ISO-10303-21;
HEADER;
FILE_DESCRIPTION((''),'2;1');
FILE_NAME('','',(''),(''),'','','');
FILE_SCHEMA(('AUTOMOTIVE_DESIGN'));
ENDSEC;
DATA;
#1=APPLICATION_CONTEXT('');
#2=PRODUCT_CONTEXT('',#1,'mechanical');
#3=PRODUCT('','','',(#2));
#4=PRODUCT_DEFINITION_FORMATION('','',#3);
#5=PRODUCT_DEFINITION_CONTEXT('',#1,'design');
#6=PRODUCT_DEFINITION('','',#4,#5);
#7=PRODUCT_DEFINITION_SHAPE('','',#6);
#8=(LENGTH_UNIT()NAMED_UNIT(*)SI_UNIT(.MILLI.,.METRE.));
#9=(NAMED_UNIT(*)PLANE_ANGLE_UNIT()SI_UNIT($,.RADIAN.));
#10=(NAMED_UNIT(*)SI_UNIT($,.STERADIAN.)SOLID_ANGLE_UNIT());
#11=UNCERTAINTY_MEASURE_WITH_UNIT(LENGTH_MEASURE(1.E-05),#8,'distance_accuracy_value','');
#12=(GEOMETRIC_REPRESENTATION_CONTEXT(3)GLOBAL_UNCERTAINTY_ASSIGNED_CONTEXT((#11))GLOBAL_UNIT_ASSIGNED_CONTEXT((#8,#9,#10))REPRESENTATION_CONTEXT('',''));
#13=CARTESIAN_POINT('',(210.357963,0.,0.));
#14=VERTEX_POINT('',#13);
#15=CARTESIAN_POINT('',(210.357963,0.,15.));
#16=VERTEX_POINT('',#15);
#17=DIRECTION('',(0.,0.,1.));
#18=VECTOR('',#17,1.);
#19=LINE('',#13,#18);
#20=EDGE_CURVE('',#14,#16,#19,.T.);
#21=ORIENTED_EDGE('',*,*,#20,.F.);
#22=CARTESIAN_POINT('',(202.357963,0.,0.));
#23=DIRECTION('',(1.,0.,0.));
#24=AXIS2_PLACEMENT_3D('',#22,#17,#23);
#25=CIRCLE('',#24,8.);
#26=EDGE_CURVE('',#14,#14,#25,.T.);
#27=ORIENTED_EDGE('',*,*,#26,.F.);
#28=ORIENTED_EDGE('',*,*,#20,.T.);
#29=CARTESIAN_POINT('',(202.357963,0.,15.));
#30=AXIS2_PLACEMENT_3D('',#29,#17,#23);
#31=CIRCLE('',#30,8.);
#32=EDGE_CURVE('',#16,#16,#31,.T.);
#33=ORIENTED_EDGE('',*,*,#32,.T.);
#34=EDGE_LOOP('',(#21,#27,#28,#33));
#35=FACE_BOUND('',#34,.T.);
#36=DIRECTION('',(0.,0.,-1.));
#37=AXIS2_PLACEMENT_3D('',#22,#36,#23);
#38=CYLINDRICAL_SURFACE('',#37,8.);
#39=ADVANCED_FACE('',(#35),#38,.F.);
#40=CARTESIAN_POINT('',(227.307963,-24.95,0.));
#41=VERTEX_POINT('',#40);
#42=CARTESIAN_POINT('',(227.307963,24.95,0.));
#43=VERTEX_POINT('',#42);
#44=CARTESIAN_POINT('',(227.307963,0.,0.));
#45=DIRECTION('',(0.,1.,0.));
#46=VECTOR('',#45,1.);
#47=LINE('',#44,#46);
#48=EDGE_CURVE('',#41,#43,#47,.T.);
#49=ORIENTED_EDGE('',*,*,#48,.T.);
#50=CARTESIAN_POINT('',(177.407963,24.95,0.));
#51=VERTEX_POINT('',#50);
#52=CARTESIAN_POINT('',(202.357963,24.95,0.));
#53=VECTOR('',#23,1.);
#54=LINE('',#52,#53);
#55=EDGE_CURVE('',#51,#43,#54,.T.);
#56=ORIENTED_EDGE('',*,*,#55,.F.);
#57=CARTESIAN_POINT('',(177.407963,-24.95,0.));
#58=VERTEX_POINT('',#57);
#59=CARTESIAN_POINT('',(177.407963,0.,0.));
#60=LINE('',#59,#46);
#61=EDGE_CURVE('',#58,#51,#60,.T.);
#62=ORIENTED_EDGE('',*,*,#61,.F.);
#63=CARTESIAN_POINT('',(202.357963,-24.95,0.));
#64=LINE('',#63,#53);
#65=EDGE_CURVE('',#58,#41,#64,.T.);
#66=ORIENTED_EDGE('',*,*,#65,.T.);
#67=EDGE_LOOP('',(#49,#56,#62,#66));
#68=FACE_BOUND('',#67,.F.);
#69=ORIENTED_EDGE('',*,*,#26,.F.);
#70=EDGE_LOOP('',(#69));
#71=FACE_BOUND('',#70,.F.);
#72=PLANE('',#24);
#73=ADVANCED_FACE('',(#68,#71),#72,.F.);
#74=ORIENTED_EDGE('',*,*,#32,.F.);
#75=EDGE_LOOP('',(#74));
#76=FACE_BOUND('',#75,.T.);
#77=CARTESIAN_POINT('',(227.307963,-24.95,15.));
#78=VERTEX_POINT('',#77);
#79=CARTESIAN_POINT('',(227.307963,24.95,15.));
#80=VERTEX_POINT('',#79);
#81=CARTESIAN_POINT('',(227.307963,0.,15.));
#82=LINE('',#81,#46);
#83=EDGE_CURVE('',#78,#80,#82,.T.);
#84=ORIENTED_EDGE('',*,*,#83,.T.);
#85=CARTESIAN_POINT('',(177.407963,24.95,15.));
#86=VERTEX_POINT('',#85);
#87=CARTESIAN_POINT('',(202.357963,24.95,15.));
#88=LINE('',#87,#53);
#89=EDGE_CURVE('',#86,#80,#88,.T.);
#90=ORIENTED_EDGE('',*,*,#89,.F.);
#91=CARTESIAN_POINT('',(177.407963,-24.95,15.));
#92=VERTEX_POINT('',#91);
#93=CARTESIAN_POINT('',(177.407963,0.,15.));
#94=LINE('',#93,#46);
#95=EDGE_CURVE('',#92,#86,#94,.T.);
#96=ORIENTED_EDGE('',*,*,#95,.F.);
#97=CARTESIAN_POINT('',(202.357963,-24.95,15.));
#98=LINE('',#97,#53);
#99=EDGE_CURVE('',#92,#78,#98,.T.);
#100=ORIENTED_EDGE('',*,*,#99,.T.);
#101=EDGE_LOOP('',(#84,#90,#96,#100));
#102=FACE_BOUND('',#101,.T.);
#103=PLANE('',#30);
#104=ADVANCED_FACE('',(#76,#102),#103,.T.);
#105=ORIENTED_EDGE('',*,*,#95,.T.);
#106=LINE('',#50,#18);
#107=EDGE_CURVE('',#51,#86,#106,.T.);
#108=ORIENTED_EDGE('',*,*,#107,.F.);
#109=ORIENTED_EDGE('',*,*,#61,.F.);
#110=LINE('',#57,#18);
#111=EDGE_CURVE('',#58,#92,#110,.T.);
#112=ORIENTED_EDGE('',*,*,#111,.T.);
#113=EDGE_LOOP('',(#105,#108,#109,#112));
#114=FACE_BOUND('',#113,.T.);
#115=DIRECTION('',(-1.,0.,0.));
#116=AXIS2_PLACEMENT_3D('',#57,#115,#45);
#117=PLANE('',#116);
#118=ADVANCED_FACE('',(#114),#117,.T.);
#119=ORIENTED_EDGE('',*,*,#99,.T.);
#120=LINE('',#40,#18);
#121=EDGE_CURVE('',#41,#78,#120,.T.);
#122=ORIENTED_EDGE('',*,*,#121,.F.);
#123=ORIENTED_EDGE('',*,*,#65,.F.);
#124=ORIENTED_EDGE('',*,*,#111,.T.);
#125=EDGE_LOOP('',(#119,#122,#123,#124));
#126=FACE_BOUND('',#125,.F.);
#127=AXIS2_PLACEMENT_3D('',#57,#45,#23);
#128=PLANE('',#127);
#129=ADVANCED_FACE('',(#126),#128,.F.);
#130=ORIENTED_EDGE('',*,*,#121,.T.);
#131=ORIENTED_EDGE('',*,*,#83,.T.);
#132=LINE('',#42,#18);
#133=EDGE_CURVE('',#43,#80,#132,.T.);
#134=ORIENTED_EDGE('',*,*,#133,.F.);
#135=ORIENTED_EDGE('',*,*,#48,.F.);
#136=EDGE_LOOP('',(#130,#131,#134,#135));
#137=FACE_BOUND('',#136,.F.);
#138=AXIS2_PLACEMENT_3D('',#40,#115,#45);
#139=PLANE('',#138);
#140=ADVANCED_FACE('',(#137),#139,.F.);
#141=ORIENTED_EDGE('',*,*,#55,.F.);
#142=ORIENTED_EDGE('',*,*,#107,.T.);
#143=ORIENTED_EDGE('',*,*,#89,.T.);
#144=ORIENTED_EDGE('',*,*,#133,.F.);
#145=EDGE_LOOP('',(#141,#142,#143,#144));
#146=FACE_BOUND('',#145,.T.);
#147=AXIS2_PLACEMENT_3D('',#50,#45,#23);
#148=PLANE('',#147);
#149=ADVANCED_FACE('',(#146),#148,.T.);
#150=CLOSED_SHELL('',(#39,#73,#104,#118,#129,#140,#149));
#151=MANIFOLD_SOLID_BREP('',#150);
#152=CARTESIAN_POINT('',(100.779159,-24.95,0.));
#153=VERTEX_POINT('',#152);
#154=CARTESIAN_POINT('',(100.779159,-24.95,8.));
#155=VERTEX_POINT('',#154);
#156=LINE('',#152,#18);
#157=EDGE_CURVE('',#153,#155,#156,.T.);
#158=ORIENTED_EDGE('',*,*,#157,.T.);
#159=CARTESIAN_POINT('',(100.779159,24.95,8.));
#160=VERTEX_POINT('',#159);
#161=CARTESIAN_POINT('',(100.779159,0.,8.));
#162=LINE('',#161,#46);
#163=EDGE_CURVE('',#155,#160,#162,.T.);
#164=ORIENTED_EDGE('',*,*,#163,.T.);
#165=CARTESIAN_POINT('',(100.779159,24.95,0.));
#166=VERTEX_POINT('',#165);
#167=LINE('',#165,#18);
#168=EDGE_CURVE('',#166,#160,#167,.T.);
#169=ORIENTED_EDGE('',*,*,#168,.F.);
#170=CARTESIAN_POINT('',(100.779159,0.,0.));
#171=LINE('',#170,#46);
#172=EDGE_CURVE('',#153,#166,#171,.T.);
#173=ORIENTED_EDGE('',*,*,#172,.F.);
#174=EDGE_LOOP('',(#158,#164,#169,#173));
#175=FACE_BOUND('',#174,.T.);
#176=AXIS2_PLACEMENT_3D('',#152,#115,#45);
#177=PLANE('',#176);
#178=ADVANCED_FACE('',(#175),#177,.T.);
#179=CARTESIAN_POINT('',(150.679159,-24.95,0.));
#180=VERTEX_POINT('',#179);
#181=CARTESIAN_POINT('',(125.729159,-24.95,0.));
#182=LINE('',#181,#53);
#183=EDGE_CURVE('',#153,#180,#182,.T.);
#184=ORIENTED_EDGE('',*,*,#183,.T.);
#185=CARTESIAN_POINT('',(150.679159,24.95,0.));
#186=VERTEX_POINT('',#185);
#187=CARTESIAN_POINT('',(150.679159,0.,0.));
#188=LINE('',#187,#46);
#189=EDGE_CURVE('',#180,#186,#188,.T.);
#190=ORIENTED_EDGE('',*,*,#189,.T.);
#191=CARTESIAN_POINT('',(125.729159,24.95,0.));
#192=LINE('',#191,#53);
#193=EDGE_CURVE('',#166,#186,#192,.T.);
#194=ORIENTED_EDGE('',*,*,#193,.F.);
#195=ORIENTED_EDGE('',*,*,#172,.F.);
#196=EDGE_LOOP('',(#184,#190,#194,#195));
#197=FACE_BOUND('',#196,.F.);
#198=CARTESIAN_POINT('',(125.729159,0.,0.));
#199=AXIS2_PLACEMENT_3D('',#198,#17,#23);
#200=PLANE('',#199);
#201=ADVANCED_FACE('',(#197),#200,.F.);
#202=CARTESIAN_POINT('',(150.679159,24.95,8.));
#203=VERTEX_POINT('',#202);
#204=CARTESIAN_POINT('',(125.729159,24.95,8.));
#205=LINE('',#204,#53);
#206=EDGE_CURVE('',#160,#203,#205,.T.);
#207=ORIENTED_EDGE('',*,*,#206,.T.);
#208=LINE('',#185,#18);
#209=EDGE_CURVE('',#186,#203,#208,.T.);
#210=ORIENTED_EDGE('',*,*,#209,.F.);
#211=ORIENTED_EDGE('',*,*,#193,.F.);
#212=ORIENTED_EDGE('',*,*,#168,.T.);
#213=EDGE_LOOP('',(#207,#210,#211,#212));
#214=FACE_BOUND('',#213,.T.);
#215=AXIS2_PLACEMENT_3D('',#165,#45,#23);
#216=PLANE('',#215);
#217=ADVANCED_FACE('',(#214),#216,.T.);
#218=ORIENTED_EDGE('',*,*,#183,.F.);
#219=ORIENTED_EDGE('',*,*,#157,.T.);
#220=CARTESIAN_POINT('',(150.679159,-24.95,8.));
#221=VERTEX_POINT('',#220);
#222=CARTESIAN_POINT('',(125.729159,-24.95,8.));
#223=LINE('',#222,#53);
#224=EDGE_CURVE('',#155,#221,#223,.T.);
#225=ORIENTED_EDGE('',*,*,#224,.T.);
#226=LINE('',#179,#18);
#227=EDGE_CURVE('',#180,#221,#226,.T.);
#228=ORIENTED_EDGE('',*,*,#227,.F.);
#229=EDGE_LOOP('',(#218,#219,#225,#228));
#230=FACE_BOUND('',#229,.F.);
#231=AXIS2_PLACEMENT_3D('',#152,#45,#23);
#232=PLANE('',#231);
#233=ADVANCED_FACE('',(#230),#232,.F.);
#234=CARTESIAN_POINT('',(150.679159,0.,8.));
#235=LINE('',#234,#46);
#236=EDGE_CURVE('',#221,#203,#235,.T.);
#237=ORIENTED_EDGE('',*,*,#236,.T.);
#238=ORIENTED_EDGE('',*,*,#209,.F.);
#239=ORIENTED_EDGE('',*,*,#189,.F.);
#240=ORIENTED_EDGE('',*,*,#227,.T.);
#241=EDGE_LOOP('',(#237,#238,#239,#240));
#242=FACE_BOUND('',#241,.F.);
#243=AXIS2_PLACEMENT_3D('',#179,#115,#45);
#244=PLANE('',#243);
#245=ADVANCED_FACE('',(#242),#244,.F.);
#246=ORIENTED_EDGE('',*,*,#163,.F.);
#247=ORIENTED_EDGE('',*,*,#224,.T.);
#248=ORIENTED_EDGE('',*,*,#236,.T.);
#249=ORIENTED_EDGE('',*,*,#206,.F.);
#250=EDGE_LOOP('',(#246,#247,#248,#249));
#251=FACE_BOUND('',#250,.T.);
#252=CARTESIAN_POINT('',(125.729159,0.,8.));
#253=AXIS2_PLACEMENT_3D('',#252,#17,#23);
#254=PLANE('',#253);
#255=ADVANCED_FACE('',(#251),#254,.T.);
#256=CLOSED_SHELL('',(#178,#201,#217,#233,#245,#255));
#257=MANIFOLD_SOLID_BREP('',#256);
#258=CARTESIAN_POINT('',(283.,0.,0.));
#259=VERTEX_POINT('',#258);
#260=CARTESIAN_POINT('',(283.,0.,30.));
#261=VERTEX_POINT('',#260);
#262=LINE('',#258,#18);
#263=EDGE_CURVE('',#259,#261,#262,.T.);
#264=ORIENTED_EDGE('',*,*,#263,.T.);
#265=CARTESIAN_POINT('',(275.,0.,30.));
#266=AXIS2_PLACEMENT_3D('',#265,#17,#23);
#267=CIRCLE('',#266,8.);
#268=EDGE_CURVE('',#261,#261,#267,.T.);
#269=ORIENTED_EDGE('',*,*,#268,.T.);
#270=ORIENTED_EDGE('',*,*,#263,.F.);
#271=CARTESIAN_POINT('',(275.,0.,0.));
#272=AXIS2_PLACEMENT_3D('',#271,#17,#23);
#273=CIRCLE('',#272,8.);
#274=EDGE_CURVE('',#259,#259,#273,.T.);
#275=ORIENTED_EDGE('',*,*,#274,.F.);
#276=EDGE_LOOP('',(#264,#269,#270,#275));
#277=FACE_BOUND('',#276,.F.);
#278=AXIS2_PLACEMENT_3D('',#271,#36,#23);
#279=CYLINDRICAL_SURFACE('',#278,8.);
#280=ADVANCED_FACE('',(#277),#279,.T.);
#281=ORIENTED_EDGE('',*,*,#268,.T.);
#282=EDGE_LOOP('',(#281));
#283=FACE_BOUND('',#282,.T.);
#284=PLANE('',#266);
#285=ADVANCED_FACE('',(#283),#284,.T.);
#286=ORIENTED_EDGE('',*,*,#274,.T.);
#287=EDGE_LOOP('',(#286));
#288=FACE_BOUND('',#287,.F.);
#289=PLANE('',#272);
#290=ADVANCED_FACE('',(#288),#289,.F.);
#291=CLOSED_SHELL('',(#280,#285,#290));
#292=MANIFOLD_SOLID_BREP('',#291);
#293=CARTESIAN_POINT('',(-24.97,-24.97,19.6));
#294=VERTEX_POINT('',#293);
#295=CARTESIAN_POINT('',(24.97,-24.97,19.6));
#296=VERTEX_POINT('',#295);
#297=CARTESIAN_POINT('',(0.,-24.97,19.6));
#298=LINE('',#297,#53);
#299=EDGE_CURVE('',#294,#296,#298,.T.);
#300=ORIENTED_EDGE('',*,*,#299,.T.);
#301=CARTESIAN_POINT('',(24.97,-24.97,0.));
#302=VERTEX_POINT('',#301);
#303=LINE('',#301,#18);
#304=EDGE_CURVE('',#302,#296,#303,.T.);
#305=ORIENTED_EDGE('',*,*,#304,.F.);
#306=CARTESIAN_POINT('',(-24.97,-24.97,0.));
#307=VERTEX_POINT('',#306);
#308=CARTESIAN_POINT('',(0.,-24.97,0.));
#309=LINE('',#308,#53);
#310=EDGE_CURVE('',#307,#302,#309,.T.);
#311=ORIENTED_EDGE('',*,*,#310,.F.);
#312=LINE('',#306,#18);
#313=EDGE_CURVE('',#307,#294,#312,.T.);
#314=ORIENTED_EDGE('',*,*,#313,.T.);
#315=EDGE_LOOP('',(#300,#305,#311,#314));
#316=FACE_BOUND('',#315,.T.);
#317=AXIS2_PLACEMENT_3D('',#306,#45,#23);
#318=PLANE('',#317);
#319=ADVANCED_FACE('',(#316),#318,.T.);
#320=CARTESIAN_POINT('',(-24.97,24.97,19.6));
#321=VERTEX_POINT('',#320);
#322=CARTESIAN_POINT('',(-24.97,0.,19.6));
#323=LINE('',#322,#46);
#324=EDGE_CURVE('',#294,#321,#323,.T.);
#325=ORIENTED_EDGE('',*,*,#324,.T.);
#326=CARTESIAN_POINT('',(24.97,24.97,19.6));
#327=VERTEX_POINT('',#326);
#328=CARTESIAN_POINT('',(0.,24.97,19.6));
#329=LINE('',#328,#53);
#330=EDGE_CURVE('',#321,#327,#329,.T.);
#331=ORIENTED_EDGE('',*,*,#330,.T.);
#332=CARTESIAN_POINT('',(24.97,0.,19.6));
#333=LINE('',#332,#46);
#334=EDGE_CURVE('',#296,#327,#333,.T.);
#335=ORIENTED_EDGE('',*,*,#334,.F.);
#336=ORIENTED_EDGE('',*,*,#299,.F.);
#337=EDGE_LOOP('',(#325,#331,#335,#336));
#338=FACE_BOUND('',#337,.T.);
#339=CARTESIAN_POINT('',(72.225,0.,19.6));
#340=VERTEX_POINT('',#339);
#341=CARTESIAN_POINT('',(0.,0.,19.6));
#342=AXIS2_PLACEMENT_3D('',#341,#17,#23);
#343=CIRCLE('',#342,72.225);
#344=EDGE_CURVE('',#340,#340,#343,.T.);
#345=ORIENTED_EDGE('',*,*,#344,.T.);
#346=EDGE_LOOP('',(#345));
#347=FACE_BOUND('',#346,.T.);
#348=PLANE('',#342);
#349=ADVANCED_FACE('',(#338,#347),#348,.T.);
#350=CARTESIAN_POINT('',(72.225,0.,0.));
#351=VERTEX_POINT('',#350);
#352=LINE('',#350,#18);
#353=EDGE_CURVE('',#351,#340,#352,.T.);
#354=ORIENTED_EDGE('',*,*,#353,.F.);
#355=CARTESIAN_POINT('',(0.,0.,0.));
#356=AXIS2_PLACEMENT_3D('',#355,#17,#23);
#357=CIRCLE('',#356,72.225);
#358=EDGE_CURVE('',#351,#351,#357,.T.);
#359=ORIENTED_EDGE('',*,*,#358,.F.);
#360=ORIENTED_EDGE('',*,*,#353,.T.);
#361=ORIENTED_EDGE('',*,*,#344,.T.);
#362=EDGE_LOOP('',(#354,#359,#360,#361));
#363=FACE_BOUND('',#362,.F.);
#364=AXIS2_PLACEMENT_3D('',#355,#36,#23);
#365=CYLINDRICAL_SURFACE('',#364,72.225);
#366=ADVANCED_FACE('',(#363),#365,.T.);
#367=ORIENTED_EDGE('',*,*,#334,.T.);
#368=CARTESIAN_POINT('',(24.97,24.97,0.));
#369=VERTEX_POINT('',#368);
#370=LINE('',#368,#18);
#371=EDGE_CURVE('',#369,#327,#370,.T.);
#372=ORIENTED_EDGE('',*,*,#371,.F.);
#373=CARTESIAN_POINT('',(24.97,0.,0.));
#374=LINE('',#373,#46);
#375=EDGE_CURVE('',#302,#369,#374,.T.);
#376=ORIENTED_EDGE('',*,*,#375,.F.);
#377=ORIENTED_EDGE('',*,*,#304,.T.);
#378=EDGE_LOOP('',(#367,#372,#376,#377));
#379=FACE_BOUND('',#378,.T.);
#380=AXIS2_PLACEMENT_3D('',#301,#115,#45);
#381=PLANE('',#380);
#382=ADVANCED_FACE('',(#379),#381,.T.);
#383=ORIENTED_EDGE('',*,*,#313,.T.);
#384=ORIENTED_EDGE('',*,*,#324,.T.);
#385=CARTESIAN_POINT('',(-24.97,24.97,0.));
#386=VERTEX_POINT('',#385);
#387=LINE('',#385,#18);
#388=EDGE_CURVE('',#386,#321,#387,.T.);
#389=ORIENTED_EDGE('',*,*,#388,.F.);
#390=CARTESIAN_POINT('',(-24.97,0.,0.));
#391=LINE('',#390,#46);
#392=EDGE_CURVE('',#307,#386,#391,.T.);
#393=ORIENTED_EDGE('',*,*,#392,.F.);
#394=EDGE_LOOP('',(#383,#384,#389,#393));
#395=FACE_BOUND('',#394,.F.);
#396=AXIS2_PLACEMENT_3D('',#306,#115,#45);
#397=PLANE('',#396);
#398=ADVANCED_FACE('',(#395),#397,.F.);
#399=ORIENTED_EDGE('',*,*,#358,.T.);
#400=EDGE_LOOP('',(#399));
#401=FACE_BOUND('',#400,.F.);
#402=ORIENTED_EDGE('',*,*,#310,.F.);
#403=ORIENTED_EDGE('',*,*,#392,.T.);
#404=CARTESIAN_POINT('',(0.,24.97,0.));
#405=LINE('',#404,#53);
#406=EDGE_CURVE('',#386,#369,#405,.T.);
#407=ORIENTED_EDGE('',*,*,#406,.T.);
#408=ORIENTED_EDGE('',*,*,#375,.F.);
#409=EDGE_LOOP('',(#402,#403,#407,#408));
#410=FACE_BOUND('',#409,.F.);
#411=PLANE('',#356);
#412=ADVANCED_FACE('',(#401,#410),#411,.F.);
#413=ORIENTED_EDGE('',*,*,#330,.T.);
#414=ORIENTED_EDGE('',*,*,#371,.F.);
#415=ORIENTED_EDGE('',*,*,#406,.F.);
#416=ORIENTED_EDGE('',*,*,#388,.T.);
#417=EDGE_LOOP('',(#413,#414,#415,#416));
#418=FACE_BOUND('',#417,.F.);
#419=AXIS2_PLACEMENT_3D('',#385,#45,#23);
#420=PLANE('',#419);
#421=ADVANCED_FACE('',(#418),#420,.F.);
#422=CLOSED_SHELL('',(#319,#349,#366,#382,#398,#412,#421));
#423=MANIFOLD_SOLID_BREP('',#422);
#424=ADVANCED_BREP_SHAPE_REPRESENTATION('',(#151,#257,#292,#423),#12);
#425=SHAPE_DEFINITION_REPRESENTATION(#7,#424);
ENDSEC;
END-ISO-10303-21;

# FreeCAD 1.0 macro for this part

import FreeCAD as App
import Part
import Sketcher
from FreeCAD import Vector

doc = App.newDocument("Part")
body = doc.addObject("PartDesign::Body", "Body")

# Sketch on XY plane
sketch1 = body.newObject("Sketcher::SketchObject", "Sketch")
sketch1.AttachmentSupport = (doc.getObject("XY_Plane"), [""])
sketch1.MapMode = "FlatFace"
sketch1.addGeometry(Part.Circle(Vector(0, 0, 0), Vector(0, 0, 1), 72), False)
sketch1.addGeometry(Part.LineSegment(Vector(25, -25, 0), Vector(-25, -25, 0)), False)
sketch1.addGeometry(Part.LineSegment(Vector(-25, -25, 0), Vector(-25, 25, 0)), False)
sketch1.addGeometry(Part.LineSegment(Vector(-25, 25, 0), Vector(25, 25, 0)), False)
sketch1.addGeometry(Part.LineSegment(Vector(25, 25, 0), Vector(25, -25, 0)), False)
sketch1.addConstraint(Sketcher.Constraint("Coincident", 1, 2, 2, 1))
sketch1.addConstraint(Sketcher.Constraint("Coincident", 2, 2, 3, 1))
sketch1.addConstraint(Sketcher.Constraint("Coincident", 3, 2, 4, 1))
sketch1.addConstraint(Sketcher.Constraint("Coincident", 4, 2, 1, 1))
sketch1.addConstraint(Sketcher.Constraint("Horizontal", 1))
sketch1.addConstraint(Sketcher.Constraint("Vertical", 2))
sketch1.addConstraint(Sketcher.Constraint("Horizontal", 3))
sketch1.addConstraint(Sketcher.Constraint("Vertical", 4))
sketch1.addConstraint(Sketcher.Constraint("Coincident", 0, 3, -1, 1))
sketch1.addConstraint(Sketcher.Constraint("Symmetric", 1, 2, 3, 2, -1, 1))
sketch1.addConstraint(Sketcher.Constraint("Equal", 3, 2))
sketch1.addConstraint(Sketcher.Constraint("Diameter", 0, 144.45))
sketch1.addConstraint(Sketcher.Constraint("DistanceX", 1, 2, 1, 1, 49.94))
pad1 = body.newObject("PartDesign::Pad", "Pad")
pad1.Profile = sketch1
pad1.Length = 19.6
body2 = doc.addObject("PartDesign::Body", "Body001")

# Sketch on XY plane
sketch2 = body2.newObject("Sketcher::SketchObject", "Sketch001")
sketch2.AttachmentSupport = (doc.getObject("XY_Plane001"), [""])
sketch2.MapMode = "FlatFace"
sketch2.addGeometry(Part.LineSegment(Vector(101, 25, 0), Vector(101, -25, 0)), False)
sketch2.addGeometry(Part.LineSegment(Vector(101, -25, 0), Vector(151, -25, 0)), False)
sketch2.addGeometry(Part.LineSegment(Vector(151, -25, 0), Vector(151, 25, 0)), False)
sketch2.addGeometry(Part.LineSegment(Vector(151, 25, 0), Vector(101, 25, 0)), False)
sketch2.addConstraint(Sketcher.Constraint("Coincident", 0, 2, 1, 1))
sketch2.addConstraint(Sketcher.Constraint("Coincident", 1, 2, 2, 1))
sketch2.addConstraint(Sketcher.Constraint("Coincident", 2, 2, 3, 1))
sketch2.addConstraint(Sketcher.Constraint("Coincident", 3, 2, 0, 1))
sketch2.addConstraint(Sketcher.Constraint("Vertical", 0))
sketch2.addConstraint(Sketcher.Constraint("Horizontal", 1))
sketch2.addConstraint(Sketcher.Constraint("Vertical", 2))
sketch2.addConstraint(Sketcher.Constraint("Horizontal", 3))
sketch2.addConstraint(Sketcher.Constraint("Equal", 3, 0))
sketch2.addConstraint(Sketcher.Constraint("DistanceX", 1, 1, 1, 2, 49.9))
sketch2.addConstraint(Sketcher.Constraint("DistanceY", 0, 2, -1, 1, 24.95))
sketch2.addConstraint(Sketcher.Constraint("DistanceX", -1, 1, 0, 2, 100.779159))
pad2 = body2.newObject("PartDesign::Pad", "Pad001")
pad2.Profile = sketch2
pad2.Length = 8
body3 = doc.addObject("PartDesign::Body", "Body002")

# Sketch on XY plane
sketch3 = body3.newObject("Sketcher::SketchObject", "Sketch002")
sketch3.AttachmentSupport = (doc.getObject("XY_Plane002"), [""])
sketch3.MapMode = "FlatFace"
sketch3.addGeometry(Part.LineSegment(Vector(177, 25, 0), Vector(177, -25, 0)), False)
sketch3.addGeometry(Part.LineSegment(Vector(177, -25, 0), Vector(227, -25, 0)), False)
sketch3.addGeometry(Part.LineSegment(Vector(227, -25, 0), Vector(227, 25, 0)), False)
sketch3.addGeometry(Part.LineSegment(Vector(227, 25, 0), Vector(177, 25, 0)), False)
sketch3.addGeometry(Part.Circle(Vector(202, 0, 0), Vector(0, 0, 1), 8), False)
sketch3.addConstraint(Sketcher.Constraint("Coincident", 0, 2, 1, 1))
sketch3.addConstraint(Sketcher.Constraint("Coincident", 1, 2, 2, 1))
sketch3.addConstraint(Sketcher.Constraint("Coincident", 2, 2, 3, 1))
sketch3.addConstraint(Sketcher.Constraint("Coincident", 3, 2, 0, 1))
sketch3.addConstraint(Sketcher.Constraint("Vertical", 0))
sketch3.addConstraint(Sketcher.Constraint("Horizontal", 1))
sketch3.addConstraint(Sketcher.Constraint("Vertical", 2))
sketch3.addConstraint(Sketcher.Constraint("Horizontal", 3))
sketch3.addConstraint(Sketcher.Constraint("PointOnObject", 4, 3, -1))
sketch3.addConstraint(Sketcher.Constraint("Equal", 3, 0))
sketch3.addConstraint(Sketcher.Constraint("Diameter", 4, 16.0))
sketch3.addConstraint(Sketcher.Constraint("DistanceX", 1, 1, 1, 2, 49.9))
sketch3.addConstraint(Sketcher.Constraint("DistanceY", 0, 2, -1, 1, 24.95))
sketch3.addConstraint(Sketcher.Constraint("DistanceX", 0, 2, 4, 3, 24.95))
sketch3.addConstraint(Sketcher.Constraint("DistanceX", -1, 1, 4, 3, 202.357963))
pad3 = body3.newObject("PartDesign::Pad", "Pad002")
pad3.Profile = sketch3
pad3.Length = 15
body4 = doc.addObject("PartDesign::Body", "Body003")

# Sketch on XY plane
sketch4 = body4.newObject("Sketcher::SketchObject", "Sketch003")
sketch4.AttachmentSupport = (doc.getObject("XY_Plane003"), [""])
sketch4.MapMode = "FlatFace"
sketch4.addGeometry(Part.Circle(Vector(275, 0, 0), Vector(0, 0, 1), 8), False)
sketch4.addConstraint(Sketcher.Constraint("PointOnObject", 0, 3, -1))
sketch4.addConstraint(Sketcher.Constraint("Diameter", 0, 16.0))
sketch4.addConstraint(Sketcher.Constraint("DistanceX", -1, 1, 0, 3, 275.0))
pad4 = body4.newObject("PartDesign::Pad", "Pad003")
pad4.Profile = sketch4
pad4.Length = 30

doc.recompute()
